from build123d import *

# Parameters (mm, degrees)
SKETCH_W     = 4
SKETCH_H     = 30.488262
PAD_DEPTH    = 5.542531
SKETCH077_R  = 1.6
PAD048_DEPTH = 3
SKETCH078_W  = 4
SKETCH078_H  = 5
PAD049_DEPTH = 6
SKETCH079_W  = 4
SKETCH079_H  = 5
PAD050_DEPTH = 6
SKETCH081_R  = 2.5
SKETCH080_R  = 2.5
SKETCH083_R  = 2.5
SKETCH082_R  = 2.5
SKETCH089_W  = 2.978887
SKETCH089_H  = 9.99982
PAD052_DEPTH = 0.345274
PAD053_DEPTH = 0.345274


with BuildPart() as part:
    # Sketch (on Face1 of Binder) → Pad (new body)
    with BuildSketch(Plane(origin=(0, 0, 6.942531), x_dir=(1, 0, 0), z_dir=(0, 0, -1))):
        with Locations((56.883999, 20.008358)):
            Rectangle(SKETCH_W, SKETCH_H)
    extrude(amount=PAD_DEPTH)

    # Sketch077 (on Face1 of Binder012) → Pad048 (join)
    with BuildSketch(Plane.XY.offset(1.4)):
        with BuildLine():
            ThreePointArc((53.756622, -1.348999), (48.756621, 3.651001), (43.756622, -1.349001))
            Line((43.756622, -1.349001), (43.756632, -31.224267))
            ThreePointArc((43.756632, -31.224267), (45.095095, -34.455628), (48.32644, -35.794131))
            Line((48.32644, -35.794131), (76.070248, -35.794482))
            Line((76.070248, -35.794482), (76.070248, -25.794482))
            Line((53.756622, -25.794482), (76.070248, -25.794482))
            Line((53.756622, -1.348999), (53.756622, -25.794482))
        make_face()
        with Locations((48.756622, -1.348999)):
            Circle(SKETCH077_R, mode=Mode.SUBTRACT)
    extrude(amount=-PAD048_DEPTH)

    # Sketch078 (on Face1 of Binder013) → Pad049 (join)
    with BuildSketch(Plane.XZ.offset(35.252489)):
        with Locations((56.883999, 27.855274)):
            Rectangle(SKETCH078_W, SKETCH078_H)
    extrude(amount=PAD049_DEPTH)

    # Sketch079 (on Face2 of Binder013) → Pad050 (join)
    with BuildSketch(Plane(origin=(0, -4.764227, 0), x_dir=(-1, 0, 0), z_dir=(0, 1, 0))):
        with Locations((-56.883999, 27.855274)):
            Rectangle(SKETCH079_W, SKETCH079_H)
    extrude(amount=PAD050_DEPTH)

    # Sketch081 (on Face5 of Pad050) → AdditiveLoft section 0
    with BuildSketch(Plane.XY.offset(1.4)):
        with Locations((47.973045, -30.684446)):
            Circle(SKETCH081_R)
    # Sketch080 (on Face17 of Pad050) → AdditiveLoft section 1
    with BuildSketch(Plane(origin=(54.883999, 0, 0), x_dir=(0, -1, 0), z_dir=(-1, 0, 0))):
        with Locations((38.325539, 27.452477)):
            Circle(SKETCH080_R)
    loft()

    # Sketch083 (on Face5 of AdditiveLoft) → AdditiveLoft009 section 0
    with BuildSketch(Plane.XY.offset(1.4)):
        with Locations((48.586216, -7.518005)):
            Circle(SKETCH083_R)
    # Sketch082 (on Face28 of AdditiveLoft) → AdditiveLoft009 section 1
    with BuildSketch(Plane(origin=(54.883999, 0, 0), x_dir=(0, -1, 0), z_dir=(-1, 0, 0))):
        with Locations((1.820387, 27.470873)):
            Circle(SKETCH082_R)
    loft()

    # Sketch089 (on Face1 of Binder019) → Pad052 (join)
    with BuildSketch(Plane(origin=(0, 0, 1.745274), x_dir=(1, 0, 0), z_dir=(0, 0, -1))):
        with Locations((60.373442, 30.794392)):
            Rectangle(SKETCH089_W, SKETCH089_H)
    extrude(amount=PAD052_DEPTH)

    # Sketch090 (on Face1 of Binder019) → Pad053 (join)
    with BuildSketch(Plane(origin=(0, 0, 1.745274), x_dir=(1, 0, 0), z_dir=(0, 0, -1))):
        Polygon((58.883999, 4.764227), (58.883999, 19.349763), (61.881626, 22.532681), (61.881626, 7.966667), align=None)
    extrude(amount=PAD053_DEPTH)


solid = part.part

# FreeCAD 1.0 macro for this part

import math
import FreeCAD as App
import Part
import Sketcher

doc = App.newDocument("Part")
params = doc.addObject("Spreadsheet::Sheet", "Params")
for row, (alias, value) in enumerate([
    ("sketch1_width", "4 mm"),
    ("pad1_length", "5.542531 mm"),
    ("sketch2_radius", "5 mm"),
    ("sketch2_diameter", "3.2 mm"),
    ("sketch2_height", "10 mm"),
    ("pad2_length", "3 mm"),
    ("sketch3_width", "4 mm"),
    ("sketch3_height", "5 mm"),
    ("pad3_length", "6 mm"),
    ("sketch4_width", "4 mm"),
    ("sketch4_height", "5 mm"),
    ("pad4_length", "6 mm"),
    ("sketch5_diameter", "5 mm"),
    ("sketch6_diameter", "5 mm"),
    ("sketch7_diameter", "5 mm"),
    ("sketch8_diameter", "5 mm"),
    ("pad5_length", "0.345274 mm"),
    ("pad6_length", "0.345274 mm"),
], start=1):
    params.set(f"A{row}", alias)
    params.set(f"B{row}", "=" + value)
    params.setAlias(f"B{row}", alias)

body = doc.addObject("PartDesign::Body", "Body")
body.AllowCompound = True

sketch1 = body.newObject("Sketcher::SketchObject", "Sketch")
sketch1.AttachmentSupport = (doc.getObject("XY_Plane"), [""])
sketch1.MapMode = "FlatFace"
sketch1.AttachmentOffset = App.Placement(App.Vector(0, 0, 6.942531), App.Rotation())
sketch1.addGeometry(Part.LineSegment(App.Vector(54.9, -35.3, 0), App.Vector(54.9, -4.8, 0)), False)
sketch1.addGeometry(Part.LineSegment(App.Vector(54.9, -4.8, 0), App.Vector(58.9, -4.8, 0)), False)
sketch1.addGeometry(Part.LineSegment(App.Vector(58.9, -4.8, 0), App.Vector(58.9, -35.3, 0)), False)
sketch1.addGeometry(Part.LineSegment(App.Vector(58.9, -35.3, 0), App.Vector(54.9, -35.3, 0)), False)
sketch1.addConstraint(Sketcher.Constraint("Coincident", 0, 2, 1, 1))
sketch1.addConstraint(Sketcher.Constraint("Coincident", 1, 2, 2, 1))
sketch1.addConstraint(Sketcher.Constraint("Coincident", 2, 2, 3, 1))
sketch1.addConstraint(Sketcher.Constraint("Coincident", 3, 2, 0, 1))
sketch1.addConstraint(Sketcher.Constraint("Vertical", 0))
sketch1.addConstraint(Sketcher.Constraint("Horizontal", 1))
sketch1.addConstraint(Sketcher.Constraint("Vertical", 2))
sketch1.addConstraint(Sketcher.Constraint("Horizontal", 3))
sketch1.addConstraint(Sketcher.Constraint("DistanceX", 1, 1, 1, 2, 4.0))
sketch1.addConstraint(Sketcher.Constraint("DistanceX", -1, 1, 0, 2, 54.883999))
sketch1.addConstraint(Sketcher.Constraint("DistanceY", 0, 1, 0, 2, 30.488262))
sketch1.addConstraint(Sketcher.Constraint("DistanceY", 2, 2, -1, 1, 35.252489))
sketch1.setExpression("Constraints[8]", "Params.sketch1_width")
pad1 = body.newObject("PartDesign::Pad", "Pad")
pad1.Profile = sketch1
pad1.setExpression("Length", "Params.pad1_length")
pad1.Reversed = True

sketch2 = body.newObject("Sketcher::SketchObject", "Sketch001")
sketch2.AttachmentSupport = (doc.getObject("XY_Plane"), [""])
sketch2.MapMode = "FlatFace"
sketch2.AttachmentOffset = App.Placement(App.Vector(0, 0, 1.4), App.Rotation())
sketch2.addGeometry(Part.ArcOfCircle(Part.Circle(App.Vector(48.756622, -1.348999, 0), App.Vector(0, 0, 1), 5), math.radians(0), math.radians(180.000023)), False)
sketch2.addGeometry(Part.LineSegment(App.Vector(43.756622, -1.349001, 0), App.Vector(43.756632, -31.224267, 0)), False)
sketch2.addGeometry(Part.ArcOfCircle(Part.Circle(App.Vector(48.326499, -31.224264, 0), App.Vector(0, 0, 1), 4.569867), math.radians(-179.999965), math.radians(-90.000737)), False)
sketch2.addGeometry(Part.LineSegment(App.Vector(48.32644, -35.794131, 0), App.Vector(76.070248, -35.794482, 0)), False)
sketch2.addGeometry(Part.LineSegment(App.Vector(76.070248, -35.794482, 0), App.Vector(76.070248, -25.794482, 0)), False)
sketch2.addGeometry(Part.LineSegment(App.Vector(76.070248, -25.794482, 0), App.Vector(53.756622, -25.794482, 0)), False)
sketch2.addGeometry(Part.LineSegment(App.Vector(53.756622, -25.794482, 0), App.Vector(53.756622, -1.348999, 0)), False)
sketch2.addGeometry(Part.Circle(App.Vector(48.756622, -1.348999, 0), App.Vector(0, 0, 1), 1.6), False)
sketch2.addConstraint(Sketcher.Constraint("Coincident", 0, 2, 1, 1))
sketch2.addConstraint(Sketcher.Constraint("Coincident", 1, 2, 2, 1))
sketch2.addConstraint(Sketcher.Constraint("Coincident", 2, 2, 3, 1))
sketch2.addConstraint(Sketcher.Constraint("Coincident", 3, 2, 4, 1))
sketch2.addConstraint(Sketcher.Constraint("Coincident", 4, 2, 5, 1))
sketch2.addConstraint(Sketcher.Constraint("Coincident", 5, 2, 6, 1))
sketch2.addConstraint(Sketcher.Constraint("Coincident", 6, 2, 0, 1))
sketch2.addConstraint(Sketcher.Constraint("Vertical", 4))
sketch2.addConstraint(Sketcher.Constraint("Horizontal", 5))
sketch2.addConstraint(Sketcher.Constraint("Vertical", 6))
sketch2.addConstraint(Sketcher.Constraint("Coincident", 7, 3, 0, 3))
sketch2.addConstraint(Sketcher.Constraint("Radius", 0, 5.0))
sketch2.addConstraint(Sketcher.Constraint("Diameter", 7, 3.2))
sketch2.addConstraint(Sketcher.Constraint("DistanceY", 4, 1, 4, 2, 10.0))
sketch2.addConstraint(Sketcher.Constraint("DistanceY", 0, 3, -1, 1, 1.348999))
sketch2.addConstraint(Sketcher.Constraint("DistanceY", 0, 2, -1, 1, 1.349001))
sketch2.addConstraint(Sketcher.Constraint("DistanceY", 6, 2, -1, 1, 1.348999))
sketch2.addConstraint(Sketcher.Constraint("Radius", 2, 4.569867))
sketch2.addConstraint(Sketcher.Constraint("DistanceX", -1, 1, 2, 3, 48.326499))
sketch2.addConstraint(Sketcher.Constraint("Distance", 3, 27.743808))
sketch2.addConstraint(Sketcher.Constraint("DistanceX", 5, 2, 5, 1, 22.313626))
sketch2.addConstraint(Sketcher.Constraint("DistanceY", 6, 1, 6, 2, 24.445483))
sketch2.addConstraint(Sketcher.Constraint("DistanceX", -1, 1, 2, 2, 48.32644))
sketch2.addConstraint(Sketcher.Constraint("DistanceY", 2, 2, -1, 1, 35.794131))
sketch2.addConstraint(Sketcher.Constraint("DistanceY", 1, 2, 0, 3, 29.875268))
sketch2.setExpression("Constraints[11]", "Params.sketch2_radius")
sketch2.setExpression("Constraints[12]", "Params.sketch2_diameter")
sketch2.setExpression("Constraints[13]", "Params.sketch2_height")
pad2 = body.newObject("PartDesign::Pad", "Pad001")
pad2.Profile = sketch2
pad2.setExpression("Length", "Params.pad2_length")
pad2.Reversed = True

sketch3 = body.newObject("Sketcher::SketchObject", "Sketch002")
sketch3.AttachmentSupport = (doc.getObject("XZ_Plane"), [""])
sketch3.MapMode = "FlatFace"
sketch3.AttachmentOffset = App.Placement(App.Vector(0, 0, 35.252489), App.Rotation())
sketch3.addGeometry(Part.LineSegment(App.Vector(54.9, 30.4, 0), App.Vector(54.9, 25.4, 0)), False)
sketch3.addGeometry(Part.LineSegment(App.Vector(54.9, 25.4, 0), App.Vector(58.9, 25.4, 0)), False)
sketch3.addGeometry(Part.LineSegment(App.Vector(58.9, 25.4, 0), App.Vector(58.9, 30.4, 0)), False)
sketch3.addGeometry(Part.LineSegment(App.Vector(58.9, 30.4, 0), App.Vector(54.9, 30.4, 0)), False)
sketch3.addConstraint(Sketcher.Constraint("Coincident", 0, 2, 1, 1))
sketch3.addConstraint(Sketcher.Constraint("Coincident", 1, 2, 2, 1))
sketch3.addConstraint(Sketcher.Constraint("Coincident", 2, 2, 3, 1))
sketch3.addConstraint(Sketcher.Constraint("Coincident", 3, 2, 0, 1))
sketch3.addConstraint(Sketcher.Constraint("Vertical", 0))
sketch3.addConstraint(Sketcher.Constraint("Horizontal", 1))
sketch3.addConstraint(Sketcher.Constraint("Vertical", 2))
sketch3.addConstraint(Sketcher.Constraint("Horizontal", 3))
sketch3.addConstraint(Sketcher.Constraint("DistanceX", 1, 1, 1, 2, 4.0))
sketch3.addConstraint(Sketcher.Constraint("DistanceY", 0, 2, 0, 1, 5.0))
sketch3.addConstraint(Sketcher.Constraint("DistanceX", -1, 1, 0, 2, 54.883999))
sketch3.addConstraint(Sketcher.Constraint("DistanceY", -1, 1, 0, 2, 25.355274))
sketch3.setExpression("Constraints[8]", "Params.sketch3_width")
sketch3.setExpression("Constraints[9]", "Params.sketch3_height")
pad3 = body.newObject("PartDesign::Pad", "Pad002")
pad3.Profile = sketch3
pad3.setExpression("Length", "Params.pad3_length")

sketch4 = body.newObject("Sketcher::SketchObject", "Sketch003")
sketch4.AttachmentSupport = (doc.getObject("XZ_Plane"), [""])
sketch4.MapMode = "FlatFace"
sketch4.AttachmentOffset = App.Placement(App.Vector(0, 0, 4.764227), App.Rotation())
sketch4.addGeometry(Part.LineSegment(App.Vector(58.9, 30.4, 0), App.Vector(58.9, 25.4, 0)), False)
sketch4.addGeometry(Part.LineSegment(App.Vector(58.9, 25.4, 0), App.Vector(54.9, 25.4, 0)), False)
sketch4.addGeometry(Part.LineSegment(App.Vector(54.9, 25.4, 0), App.Vector(54.9, 30.4, 0)), False)
sketch4.addGeometry(Part.LineSegment(App.Vector(54.9, 30.4, 0), App.Vector(58.9, 30.4, 0)), False)
sketch4.addConstraint(Sketcher.Constraint("Coincident", 0, 2, 1, 1))
sketch4.addConstraint(Sketcher.Constraint("Coincident", 1, 2, 2, 1))
sketch4.addConstraint(Sketcher.Constraint("Coincident", 2, 2, 3, 1))
sketch4.addConstraint(Sketcher.Constraint("Coincident", 3, 2, 0, 1))
sketch4.addConstraint(Sketcher.Constraint("Vertical", 0))
sketch4.addConstraint(Sketcher.Constraint("Horizontal", 1))
sketch4.addConstraint(Sketcher.Constraint("Vertical", 2))
sketch4.addConstraint(Sketcher.Constraint("Horizontal", 3))
sketch4.addConstraint(Sketcher.Constraint("DistanceX", 1, 2, 1, 1, 4.0))
sketch4.addConstraint(Sketcher.Constraint("DistanceY", 0, 2, 0, 1, 5.0))
sketch4.addConstraint(Sketcher.Constraint("DistanceX", -1, 1, 0, 2, 58.883999))
sketch4.addConstraint(Sketcher.Constraint("DistanceY", -1, 1, 0, 2, 25.355274))
sketch4.setExpression("Constraints[8]", "Params.sketch4_width")
sketch4.setExpression("Constraints[9]", "Params.sketch4_height")
pad4 = body.newObject("PartDesign::Pad", "Pad003")
pad4.Profile = sketch4
pad4.setExpression("Length", "Params.pad4_length")
pad4.Reversed = True

sketch5 = body.newObject("Sketcher::SketchObject", "Sketch004")
sketch5.AttachmentSupport = (doc.getObject("XY_Plane"), [""])
sketch5.MapMode = "FlatFace"
sketch5.AttachmentOffset = App.Placement(App.Vector(0, 0, 1.4), App.Rotation())
sketch5.addGeometry(Part.Circle(App.Vector(48, -30.7, 0), App.Vector(0, 0, 1), 2.5), False)
sketch5.addConstraint(Sketcher.Constraint("Diameter", 0, 5.0))
sketch5.addConstraint(Sketcher.Constraint("DistanceX", -1, 1, 0, 3, 47.973045))
sketch5.addConstraint(Sketcher.Constraint("DistanceY", 0, 3, -1, 1, 30.684446))
sketch5.setExpression("Constraints[0]", "Params.sketch5_diameter")

sketch6 = body.newObject("Sketcher::SketchObject", "Sketch005")
sketch6.AttachmentSupport = (doc.getObject("YZ_Plane"), [""])
sketch6.MapMode = "FlatFace"
sketch6.AttachmentOffset = App.Placement(App.Vector(0, 0, 54.883999), App.Rotation())
sketch6.addGeometry(Part.Circle(App.Vector(-38.3, 27.5, 0), App.Vector(0, 0, 1), 2.5), False)
sketch6.addConstraint(Sketcher.Constraint("Diameter", 0, 5.0))
sketch6.addConstraint(Sketcher.Constraint("DistanceX", 0, 3, -1, 1, 38.325539))
sketch6.addConstraint(Sketcher.Constraint("DistanceY", -1, 1, 0, 3, 27.452477))
sketch6.setExpression("Constraints[0]", "Params.sketch6_diameter")

additiveloft = body.newObject("PartDesign::AdditiveLoft", "AdditiveLoft")
additiveloft.Profile = sketch5
additiveloft.Sections = [sketch6]

sketch7 = body.newObject("Sketcher::SketchObject", "Sketch006")
sketch7.AttachmentSupport = (doc.getObject("XY_Plane"), [""])
sketch7.MapMode = "FlatFace"
sketch7.AttachmentOffset = App.Placement(App.Vector(0, 0, 1.4), App.Rotation())
sketch7.addGeometry(Part.Circle(App.Vector(48.6, -7.5, 0), App.Vector(0, 0, 1), 2.5), False)
sketch7.addConstraint(Sketcher.Constraint("Diameter", 0, 5.0))
sketch7.addConstraint(Sketcher.Constraint("DistanceX", -1, 1, 0, 3, 48.586216))
sketch7.addConstraint(Sketcher.Constraint("DistanceY", 0, 3, -1, 1, 7.518005))
sketch7.setExpression("Constraints[0]", "Params.sketch7_diameter")

sketch8 = body.newObject("Sketcher::SketchObject", "Sketch007")
sketch8.AttachmentSupport = (doc.getObject("YZ_Plane"), [""])
sketch8.MapMode = "FlatFace"
sketch8.AttachmentOffset = App.Placement(App.Vector(0, 0, 54.883999), App.Rotation())
sketch8.addGeometry(Part.Circle(App.Vector(-1.8, 27.5, 0), App.Vector(0, 0, 1), 2.5), False)
sketch8.addConstraint(Sketcher.Constraint("Diameter", 0, 5.0))
sketch8.addConstraint(Sketcher.Constraint("DistanceX", 0, 3, -1, 1, 1.820387))
sketch8.addConstraint(Sketcher.Constraint("DistanceY", -1, 1, 0, 3, 27.470873))
sketch8.setExpression("Constraints[0]", "Params.sketch8_diameter")

additiveloft2 = body.newObject("PartDesign::AdditiveLoft", "AdditiveLoft001")
additiveloft2.Profile = sketch7
additiveloft2.Sections = [sketch8]

sketch9 = body.newObject("Sketcher::SketchObject", "Sketch008")
sketch9.AttachmentSupport = (doc.getObject("XY_Plane"), [""])
sketch9.MapMode = "FlatFace"
sketch9.AttachmentOffset = App.Placement(App.Vector(0, 0, 1.745274), App.Rotation())
sketch9.addGeometry(Part.LineSegment(App.Vector(58.9, -35.8, 0), App.Vector(58.9, -25.8, 0)), False)
sketch9.addGeometry(Part.LineSegment(App.Vector(58.9, -25.8, 0), App.Vector(61.9, -25.8, 0)), False)
sketch9.addGeometry(Part.LineSegment(App.Vector(61.9, -25.8, 0), App.Vector(61.9, -35.8, 0)), False)
sketch9.addGeometry(Part.LineSegment(App.Vector(61.9, -35.8, 0), App.Vector(58.9, -35.8, 0)), False)
sketch9.addConstraint(Sketcher.Constraint("Coincident", 0, 2, 1, 1))
sketch9.addConstraint(Sketcher.Constraint("Coincident", 1, 2, 2, 1))
sketch9.addConstraint(Sketcher.Constraint("Coincident", 2, 2, 3, 1))
sketch9.addConstraint(Sketcher.Constraint("Coincident", 3, 2, 0, 1))
sketch9.addConstraint(Sketcher.Constraint("Vertical", 0))
sketch9.addConstraint(Sketcher.Constraint("Horizontal", 1))
sketch9.addConstraint(Sketcher.Constraint("Vertical", 2))
sketch9.addConstraint(Sketcher.Constraint("Horizontal", 3))
sketch9.addConstraint(Sketcher.Constraint("DistanceX", -1, 1, 0, 2, 58.883998))
sketch9.addConstraint(Sketcher.Constraint("DistanceY", 0, 1, 0, 2, 9.99982))
sketch9.addConstraint(Sketcher.Constraint("DistanceX", 1, 1, 1, 2, 2.978887))
sketch9.addConstraint(Sketcher.Constraint("DistanceY", 0, 2, -1, 1, 25.794482))
pad5 = body.newObject("PartDesign::Pad", "Pad004")
pad5.Profile = sketch9
pad5.setExpression("Length", "Params.pad5_length")
pad5.Reversed = True

sketch10 = body.newObject("Sketcher::SketchObject", "Sketch009")
sketch10.AttachmentSupport = (doc.getObject("XY_Plane"), [""])
sketch10.MapMode = "FlatFace"
sketch10.AttachmentOffset = App.Placement(App.Vector(0, 0, 1.745274), App.Rotation())
sketch10.addGeometry(Part.LineSegment(App.Vector(58.9, -19.3, 0), App.Vector(58.9, -4.8, 0)), False)
sketch10.addGeometry(Part.LineSegment(App.Vector(58.9, -4.8, 0), App.Vector(61.9, -8, 0)), False)
sketch10.addGeometry(Part.LineSegment(App.Vector(61.9, -8, 0), App.Vector(61.9, -22.5, 0)), False)
sketch10.addGeometry(Part.LineSegment(App.Vector(61.9, -22.5, 0), App.Vector(58.9, -19.3, 0)), False)
sketch10.addConstraint(Sketcher.Constraint("Coincident", 0, 2, 1, 1))
sketch10.addConstraint(Sketcher.Constraint("Coincident", 1, 2, 2, 1))
sketch10.addConstraint(Sketcher.Constraint("Coincident", 2, 2, 3, 1))
sketch10.addConstraint(Sketcher.Constraint("Coincident", 3, 2, 0, 1))
sketch10.addConstraint(Sketcher.Constraint("Vertical", 0))
sketch10.addConstraint(Sketcher.Constraint("Vertical", 2))
sketch10.addConstraint(Sketcher.Constraint("DistanceX", -1, 1, 0, 2, 58.883999))
sketch10.addConstraint(Sketcher.Constraint("Distance", 1, 4.386501))
sketch10.addConstraint(Sketcher.Constraint("Distance", 3, 4.372269))
sketch10.addConstraint(Sketcher.Constraint("DistanceY", 0, 1, 0, 2, 14.585536))
sketch10.addConstraint(Sketcher.Constraint("DistanceY", 2, 2, -1, 1, 22.532681))
sketch10.addConstraint(Sketcher.Constraint("DistanceY", 1, 2, 0, 2, 3.20244))
pad6 = body.newObject("PartDesign::Pad", "Pad005")
pad6.Profile = sketch10
pad6.setExpression("Length", "Params.pad6_length")
pad6.Reversed = True

doc.recompute()
